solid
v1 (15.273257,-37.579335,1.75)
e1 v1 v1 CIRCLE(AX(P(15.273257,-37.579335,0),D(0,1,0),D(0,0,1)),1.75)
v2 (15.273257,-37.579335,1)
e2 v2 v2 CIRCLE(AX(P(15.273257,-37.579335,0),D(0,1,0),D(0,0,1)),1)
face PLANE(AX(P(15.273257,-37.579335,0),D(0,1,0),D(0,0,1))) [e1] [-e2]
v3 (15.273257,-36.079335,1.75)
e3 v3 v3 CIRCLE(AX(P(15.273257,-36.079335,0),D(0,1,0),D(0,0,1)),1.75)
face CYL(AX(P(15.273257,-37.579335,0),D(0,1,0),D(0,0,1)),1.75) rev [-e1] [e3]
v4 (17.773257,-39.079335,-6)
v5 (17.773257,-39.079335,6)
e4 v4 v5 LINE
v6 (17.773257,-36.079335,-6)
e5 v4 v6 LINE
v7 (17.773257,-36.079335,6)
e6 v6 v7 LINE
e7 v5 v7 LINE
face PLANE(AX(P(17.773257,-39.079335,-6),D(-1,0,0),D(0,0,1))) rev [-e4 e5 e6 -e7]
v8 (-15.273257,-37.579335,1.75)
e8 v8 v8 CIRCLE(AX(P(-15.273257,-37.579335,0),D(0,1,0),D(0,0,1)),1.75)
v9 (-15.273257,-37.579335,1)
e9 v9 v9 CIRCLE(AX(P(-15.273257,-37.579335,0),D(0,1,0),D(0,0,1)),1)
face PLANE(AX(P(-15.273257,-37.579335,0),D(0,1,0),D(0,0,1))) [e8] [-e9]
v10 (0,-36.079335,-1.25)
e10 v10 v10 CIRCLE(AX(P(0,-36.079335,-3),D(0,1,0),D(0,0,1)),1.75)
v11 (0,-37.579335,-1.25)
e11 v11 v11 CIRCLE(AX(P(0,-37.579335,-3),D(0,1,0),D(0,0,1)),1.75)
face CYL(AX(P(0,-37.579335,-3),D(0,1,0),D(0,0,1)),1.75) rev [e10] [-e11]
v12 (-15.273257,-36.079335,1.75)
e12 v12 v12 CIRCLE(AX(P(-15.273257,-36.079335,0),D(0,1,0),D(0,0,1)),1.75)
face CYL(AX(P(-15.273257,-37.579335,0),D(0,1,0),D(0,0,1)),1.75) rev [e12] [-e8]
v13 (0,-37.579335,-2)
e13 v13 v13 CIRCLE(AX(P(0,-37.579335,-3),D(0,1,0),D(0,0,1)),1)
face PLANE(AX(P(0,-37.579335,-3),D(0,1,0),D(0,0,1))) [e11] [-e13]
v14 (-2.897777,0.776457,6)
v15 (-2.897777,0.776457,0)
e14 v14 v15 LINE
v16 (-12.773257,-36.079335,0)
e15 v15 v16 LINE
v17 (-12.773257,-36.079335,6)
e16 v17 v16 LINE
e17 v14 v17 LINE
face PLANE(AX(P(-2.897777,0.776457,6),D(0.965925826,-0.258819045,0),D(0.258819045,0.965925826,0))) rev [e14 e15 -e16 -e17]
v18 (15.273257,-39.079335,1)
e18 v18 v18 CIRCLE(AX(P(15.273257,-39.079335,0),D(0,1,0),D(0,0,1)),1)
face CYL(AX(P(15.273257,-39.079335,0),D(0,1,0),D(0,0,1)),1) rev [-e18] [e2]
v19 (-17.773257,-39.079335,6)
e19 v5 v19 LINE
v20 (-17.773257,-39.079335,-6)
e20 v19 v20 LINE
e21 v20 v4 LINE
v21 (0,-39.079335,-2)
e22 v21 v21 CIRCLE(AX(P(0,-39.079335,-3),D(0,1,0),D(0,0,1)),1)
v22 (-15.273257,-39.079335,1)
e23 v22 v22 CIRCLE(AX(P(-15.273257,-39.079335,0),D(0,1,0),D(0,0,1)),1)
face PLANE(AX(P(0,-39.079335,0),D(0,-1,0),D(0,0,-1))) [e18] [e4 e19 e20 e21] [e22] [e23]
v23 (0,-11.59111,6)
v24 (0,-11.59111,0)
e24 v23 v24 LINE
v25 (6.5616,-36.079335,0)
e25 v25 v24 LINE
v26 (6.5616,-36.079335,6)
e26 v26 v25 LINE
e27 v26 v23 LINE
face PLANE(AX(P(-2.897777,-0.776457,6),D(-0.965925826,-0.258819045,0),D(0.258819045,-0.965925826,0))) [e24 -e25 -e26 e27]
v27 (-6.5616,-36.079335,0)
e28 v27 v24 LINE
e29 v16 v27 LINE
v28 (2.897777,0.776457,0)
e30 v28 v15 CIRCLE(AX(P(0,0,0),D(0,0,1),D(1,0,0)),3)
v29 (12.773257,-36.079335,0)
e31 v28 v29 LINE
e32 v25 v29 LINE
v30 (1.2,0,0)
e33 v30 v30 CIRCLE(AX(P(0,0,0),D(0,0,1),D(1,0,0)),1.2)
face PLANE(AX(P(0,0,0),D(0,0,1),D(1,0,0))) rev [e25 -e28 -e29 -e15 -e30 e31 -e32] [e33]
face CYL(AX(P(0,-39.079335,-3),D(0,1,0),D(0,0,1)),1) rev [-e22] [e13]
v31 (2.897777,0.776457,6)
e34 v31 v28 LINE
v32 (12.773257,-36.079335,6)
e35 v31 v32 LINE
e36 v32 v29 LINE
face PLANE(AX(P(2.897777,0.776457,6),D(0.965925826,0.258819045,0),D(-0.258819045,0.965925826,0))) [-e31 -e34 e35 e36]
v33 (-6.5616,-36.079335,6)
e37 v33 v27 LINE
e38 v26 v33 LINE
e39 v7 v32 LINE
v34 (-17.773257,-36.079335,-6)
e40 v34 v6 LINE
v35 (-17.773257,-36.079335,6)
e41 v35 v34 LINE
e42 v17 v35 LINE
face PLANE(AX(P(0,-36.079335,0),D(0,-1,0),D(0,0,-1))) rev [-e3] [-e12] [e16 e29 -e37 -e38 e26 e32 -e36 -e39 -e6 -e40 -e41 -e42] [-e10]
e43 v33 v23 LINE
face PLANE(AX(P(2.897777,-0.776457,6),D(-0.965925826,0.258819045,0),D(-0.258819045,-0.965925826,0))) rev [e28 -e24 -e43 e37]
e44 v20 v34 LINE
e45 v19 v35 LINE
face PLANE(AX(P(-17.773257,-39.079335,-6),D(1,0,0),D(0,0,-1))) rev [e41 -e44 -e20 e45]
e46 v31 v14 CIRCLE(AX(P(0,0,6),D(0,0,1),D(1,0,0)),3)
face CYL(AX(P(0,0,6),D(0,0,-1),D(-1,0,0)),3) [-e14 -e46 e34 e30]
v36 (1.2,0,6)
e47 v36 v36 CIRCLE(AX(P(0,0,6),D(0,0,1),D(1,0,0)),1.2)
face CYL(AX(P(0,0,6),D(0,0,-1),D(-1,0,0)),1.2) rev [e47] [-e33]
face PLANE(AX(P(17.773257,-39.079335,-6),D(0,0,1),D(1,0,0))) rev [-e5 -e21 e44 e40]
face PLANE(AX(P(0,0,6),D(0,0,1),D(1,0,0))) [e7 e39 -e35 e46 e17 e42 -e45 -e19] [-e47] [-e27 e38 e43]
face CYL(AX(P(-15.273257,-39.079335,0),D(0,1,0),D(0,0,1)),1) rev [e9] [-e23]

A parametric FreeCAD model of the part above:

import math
import FreeCAD as App
import Part
import Sketcher

V = App.Vector
Q = App.Units.Quantity


def add_polygon(sketch, points):
    """Adds a closed chain of lines whose ends are joined by coincident constraints."""
    first, n = sketch.GeometryCount, len(points)
    for a, b in zip(points, points[1:] + points[:1]):
        sketch.addGeometry(Part.LineSegment(App.Vector(*a, 0), App.Vector(*b, 0)), False)
    for i in range(n):
        sketch.addConstraint(Sketcher.Constraint("Coincident", first + i, 2, first + (i + 1) % n, 1))

doc = App.newDocument("Part")
body = doc.addObject("PartDesign::Body", "Body")

# Sketch on XY plane
sketch1 = body.newObject("Sketcher::SketchObject", "Sketch")
sketch1.AttachmentSupport = (doc.getObject("XY_Plane"), [""])
sketch1.MapMode = "FlatFace"
sketch1.addGeometry([
    Part.LineSegment(V(0, -11.6, 0), V(6.6, -36.1, 0)),  # 0
    Part.LineSegment(V(6.6, -36.1, 0), V(12.8, -36.1, 0)),  # 1
    Part.LineSegment(V(12.8, -36.1, 0), V(2.9, 0.8, 0)),  # 2
    Part.ArcOfCircle(Part.Circle(V(0, 0, 0), V(0, 0, 1), 3), math.radians(15), math.radians(165)),  # 3
    Part.LineSegment(V(-2.9, 0.8, 0), V(-12.8, -36.1, 0)),  # 4
    Part.LineSegment(V(-12.8, -36.1, 0), V(-6.6, -36.1, 0)),  # 5
    Part.LineSegment(V(-6.6, -36.1, 0), V(0, -11.6, 0)),  # 6
], False)
sketch1.addConstraint([
    Sketcher.Constraint("Coincident", 0, 2, 1, 1),
    Sketcher.Constraint("Coincident", 1, 2, 2, 1),
    Sketcher.Constraint("Tangent", 2, 2, 3, 1),
    Sketcher.Constraint("Tangent", 3, 2, 4, 1),
    Sketcher.Constraint("Coincident", 4, 2, 5, 1),
    Sketcher.Constraint("Coincident", 5, 2, 6, 1),
    Sketcher.Constraint("Coincident", 6, 2, 0, 1),
    Sketcher.Constraint("Horizontal", 1),
    Sketcher.Constraint("Horizontal", 5),
    Sketcher.Constraint("Coincident", 3, 3, -1, 1),
    Sketcher.Constraint("Symmetric", 1, 2, 4, 2, -2),
    Sketcher.Constraint("PointOnObject", 6, 2, -2),
    Sketcher.Constraint("Parallel", 0, 2),
    Sketcher.Constraint("Parallel", 4, 6),
    Sketcher.Constraint("Radius", 3, Q("3 mm")),
    Sketcher.Constraint("Angle", 0, Q("-75 deg")),
    Sketcher.Constraint("DistanceX", -1, 1, 0, 2, Q("6.5616 mm")),
    Sketcher.Constraint("DistanceX", 1, 1, 1, 2, Q("6.211657 mm")),
])
pad1 = body.newObject("PartDesign::Pad", "Pad")
pad1.Profile = sketch1
pad1.Length = 6

# Sketch on XZ plane
sketch2 = body.newObject("Sketcher::SketchObject", "Sketch001")
sketch2.AttachmentSupport = (doc.getObject("XZ_Plane"), [""])
sketch2.MapMode = "FlatFace"
sketch2.AttachmentOffset = App.Placement(V(0, 0, 36.079335), App.Rotation())
add_polygon(sketch2, [(-18, 6), (-18, -6), (18, -6), (18, 6)])  # lines 0-3
sketch2.addConstraint([
    Sketcher.Constraint("Vertical", 0),
    Sketcher.Constraint("Horizontal", 1),
    Sketcher.Constraint("Vertical", 2),
    Sketcher.Constraint("Horizontal", 3),
    Sketcher.Constraint("Symmetric", 0, 2, 2, 2, -1, 1),
    Sketcher.Constraint("DistanceY", 0, 2, 0, 1, Q("12 mm")),
    Sketcher.Constraint("DistanceX", 1, 1, 1, 2, Q("35.546514 mm")),
])
pad2 = body.newObject("PartDesign::Pad", "Pad001")
pad2.Profile = sketch2
pad2.Length = 3

# Sketch on XY plane
sketch3 = body.newObject("Sketcher::SketchObject", "Sketch002")
sketch3.AttachmentSupport = (doc.getObject("XY_Plane"), [""])
sketch3.MapMode = "FlatFace"
sketch3.addGeometry(Part.Circle(V(0, 0, 0), V(0, 0, 1), 1.2), False)
sketch3.addConstraint([
    Sketcher.Constraint("Coincident", 0, 3, -1, 1),
    Sketcher.Constraint("Diameter", 0, Q("2.4 mm")),
])
pocket1 = body.newObject("PartDesign::Pocket", "Pocket")
pocket1.Profile = sketch3
pocket1.Type = "ThroughAll"
pocket1.Reversed = True

# Sketch on XZ plane
sketch4 = body.newObject("Sketcher::SketchObject", "Sketch003")
sketch4.AttachmentSupport = (doc.getObject("XZ_Plane"), [""])
sketch4.MapMode = "FlatFace"
sketch4.AttachmentOffset = App.Placement(V(0, 0, 36.079335), App.Rotation())
sketch4.addGeometry([
    Part.Circle(V(15.3, 0, 0), V(0, 0, 1), 1.8),  # 0
    Part.Circle(V(15.3, 0, 0), V(0, 0, 1), 1),  # 1
    Part.Circle(V(-15.3, 0, 0), V(0, 0, 1), 1.8),  # 2
    Part.Circle(V(-15.3, 0, 0), V(0, 0, 1), 1),  # 3
    Part.Circle(V(0, -3, 0), V(0, 0, 1), 1.8),  # 4
    Part.Circle(V(0, -3, 0), V(0, 0, 1), 1),  # 5
], False)
sketch4.addConstraint([
    Sketcher.Constraint("Coincident", 1, 3, 0, 3),
    Sketcher.Constraint("Coincident", 3, 3, 2, 3),
    Sketcher.Constraint("Coincident", 5, 3, 4, 3),
    Sketcher.Constraint("Equal", 0, 2),
    Sketcher.Constraint("Equal", 1, 3),
    Sketcher.Constraint("Equal", 2, 4),
    Sketcher.Constraint("Equal", 3, 5),
    Sketcher.Constraint("Symmetric", 0, 3, 2, 3, -1, 1),
    Sketcher.Constraint("PointOnObject", 0, 3, -1),
    Sketcher.Constraint("PointOnObject", 4, 3, -2),
    Sketcher.Constraint("Diameter", 1, Q("2 mm")),
    Sketcher.Constraint("Diameter", 0, Q("3.5 mm")),
    Sketcher.Constraint("DistanceY", 4, 3, -1, 1, Q("3 mm")),
    Sketcher.Constraint("DistanceX", -1, 1, 0, 3, Q("15.273257 mm")),
])
pocket2 = body.newObject("PartDesign::Pocket", "Pocket001")
pocket2.Profile = sketch4
pocket2.Length = 1.5
pocket2.Reversed = True

# Sketch on XZ plane
sketch5 = body.newObject("Sketcher::SketchObject", "Sketch004")
sketch5.AttachmentSupport = (doc.getObject("XZ_Plane"), [""])
sketch5.MapMode = "FlatFace"
sketch5.AttachmentOffset = App.Placement(V(0, 0, 36.079335), App.Rotation())
sketch5.addGeometry([
    Part.Circle(V(15.3, 0, 0), V(0, 0, 1), 1),
    Part.Circle(V(0, -3, 0), V(0, 0, 1), 1),
    Part.Circle(V(-15.3, 0, 0), V(0, 0, 1), 1),
], False)
sketch5.addConstraint([
    Sketcher.Constraint("Equal", 0, 1),
    Sketcher.Constraint("Equal", 1, 2),
    Sketcher.Constraint("Symmetric", 0, 3, 2, 3, -1, 1),
    Sketcher.Constraint("PointOnObject", 0, 3, -1),
    Sketcher.Constraint("PointOnObject", 1, 3, -2),
    Sketcher.Constraint("Diameter", 0, Q("2 mm")),
    Sketcher.Constraint("DistanceY", 1, 3, -1, 1, Q("3 mm")),
    Sketcher.Constraint("DistanceX", -1, 1, 0, 3, Q("15.273257 mm")),
])
pocket3 = body.newObject("PartDesign::Pocket", "Pocket002")
pocket3.Profile = sketch5
pocket3.Type = "ThroughAll"
pocket3.Reversed = True

doc.recompute()
